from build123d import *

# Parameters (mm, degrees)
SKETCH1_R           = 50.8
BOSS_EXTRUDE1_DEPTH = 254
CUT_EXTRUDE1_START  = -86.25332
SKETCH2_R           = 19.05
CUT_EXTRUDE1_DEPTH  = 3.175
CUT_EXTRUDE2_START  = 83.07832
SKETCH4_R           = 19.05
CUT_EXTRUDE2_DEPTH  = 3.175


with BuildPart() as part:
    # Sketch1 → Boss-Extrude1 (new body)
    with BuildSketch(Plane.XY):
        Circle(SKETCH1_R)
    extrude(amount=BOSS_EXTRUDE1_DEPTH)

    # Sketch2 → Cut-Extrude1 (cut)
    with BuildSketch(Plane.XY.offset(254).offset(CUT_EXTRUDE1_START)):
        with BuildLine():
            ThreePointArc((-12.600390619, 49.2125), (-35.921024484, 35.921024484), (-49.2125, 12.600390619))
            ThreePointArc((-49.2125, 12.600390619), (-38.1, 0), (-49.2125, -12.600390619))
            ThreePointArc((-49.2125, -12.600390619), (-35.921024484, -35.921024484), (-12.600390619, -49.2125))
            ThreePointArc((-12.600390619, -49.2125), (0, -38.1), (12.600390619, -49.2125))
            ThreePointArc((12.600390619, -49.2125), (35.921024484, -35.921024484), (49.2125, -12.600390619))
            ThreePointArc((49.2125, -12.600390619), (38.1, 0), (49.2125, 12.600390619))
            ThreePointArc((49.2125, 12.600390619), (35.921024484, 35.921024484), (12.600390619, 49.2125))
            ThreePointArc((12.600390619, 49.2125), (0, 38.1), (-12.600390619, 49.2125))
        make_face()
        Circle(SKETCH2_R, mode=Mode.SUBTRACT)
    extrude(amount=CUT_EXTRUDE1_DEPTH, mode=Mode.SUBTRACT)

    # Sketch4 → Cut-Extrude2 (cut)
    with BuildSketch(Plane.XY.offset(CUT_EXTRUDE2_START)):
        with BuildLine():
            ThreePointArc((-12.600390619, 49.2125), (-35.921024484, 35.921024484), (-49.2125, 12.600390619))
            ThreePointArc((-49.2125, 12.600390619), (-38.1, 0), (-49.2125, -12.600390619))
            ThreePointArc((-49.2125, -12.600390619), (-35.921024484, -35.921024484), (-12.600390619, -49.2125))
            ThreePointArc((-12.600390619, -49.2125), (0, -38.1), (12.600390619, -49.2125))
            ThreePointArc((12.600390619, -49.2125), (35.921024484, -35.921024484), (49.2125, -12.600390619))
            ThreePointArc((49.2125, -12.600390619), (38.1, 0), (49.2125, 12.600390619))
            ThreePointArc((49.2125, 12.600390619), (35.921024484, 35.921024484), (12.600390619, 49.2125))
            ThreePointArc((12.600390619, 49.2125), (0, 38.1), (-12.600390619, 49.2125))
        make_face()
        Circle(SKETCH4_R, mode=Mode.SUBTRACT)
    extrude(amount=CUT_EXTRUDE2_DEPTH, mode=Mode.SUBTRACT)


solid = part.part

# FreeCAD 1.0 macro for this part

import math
import FreeCAD as App
import Part
import Sketcher
from FreeCAD import Vector
Q = App.Units.Quantity

doc = App.newDocument("Part")
body = doc.addObject("PartDesign::Body", "Body")

sketch1 = body.newObject("Sketcher::SketchObject", "Sketch")
sketch1.AttachmentSupport = (doc.getObject("XY_Plane"), [""])
sketch1.MapMode = "FlatFace"
sketch1.addGeometry(Part.Circle(Vector(0, 0, 0), Vector(0, 0, 1), 51), False)
sketch1.addConstraint([
    Sketcher.Constraint("Coincident", 0, 3, -1, 1),
    Sketcher.Constraint("Diameter", 0, Q("4 in")),
])
pad1 = body.newObject("PartDesign::Pad", "Pad")
pad1.Profile = sketch1
pad1.Length = Q("10 in")

sketch2 = body.newObject("Sketcher::SketchObject", "Sketch001")
sketch2.AttachmentSupport = (doc.getObject("XY_Plane"), [""])
sketch2.MapMode = "FlatFace"
sketch2.AttachmentOffset = App.Placement(Vector(0, 0, 6.6042 * 25.4), App.Rotation())
sketch2.addGeometry([
    Part.ArcOfCircle(Part.Circle(Vector(0, 0, 0), Vector(0, 0, 1), 51), math.radians(104), math.radians(166)),
    Part.ArcOfCircle(Part.Circle(Vector(-51, 0, 0), Vector(0, 0, 1), 13), math.radians(-83), math.radians(83)),
    Part.ArcOfCircle(Part.Circle(Vector(0, 0, 0), Vector(0, 0, 1), 51), math.radians(-166), math.radians(-104)),
    Part.ArcOfCircle(Part.Circle(Vector(0, -51, 0), Vector(0, 0, 1), 13), math.radians(7), math.radians(173)),
    Part.ArcOfCircle(Part.Circle(Vector(0, 0, 0), Vector(0, 0, 1), 51), math.radians(-76), math.radians(-14)),
    Part.ArcOfCircle(Part.Circle(Vector(51, 0, 0), Vector(0, 0, 1), 13), math.radians(97), math.radians(263)),
    Part.ArcOfCircle(Part.Circle(Vector(0, 0, 0), Vector(0, 0, 1), 51), math.radians(14), math.radians(76)),
    Part.ArcOfCircle(Part.Circle(Vector(0, 51, 0), Vector(0, 0, 1), 13), math.radians(-173), math.radians(-7)),
    Part.Circle(Vector(0, 0, 0), Vector(0, 0, 1), 19),
], False)
sketch2.addConstraint([
    Sketcher.Constraint("Coincident", 0, 2, 1, 2),
    Sketcher.Constraint("Coincident", 1, 1, 2, 1),
    Sketcher.Constraint("Coincident", 2, 2, 3, 2),
    Sketcher.Constraint("Coincident", 3, 1, 4, 1),
    Sketcher.Constraint("Coincident", 4, 2, 5, 2),
    Sketcher.Constraint("Coincident", 5, 1, 6, 1),
    Sketcher.Constraint("Coincident", 6, 2, 7, 2),
    Sketcher.Constraint("Coincident", 7, 1, 0, 1),
    Sketcher.Constraint("Coincident", 0, 3, -1, 1),
    Sketcher.Constraint("Coincident", 2, 3, -1, 1),
    Sketcher.Constraint("Coincident", 4, 3, -1, 1),
    Sketcher.Constraint("Coincident", 6, 3, -1, 1),
    Sketcher.Constraint("Coincident", 8, 3, -1, 1),
    Sketcher.Constraint("Equal", 0, 2),
    Sketcher.Constraint("Equal", 1, 3),
    Sketcher.Constraint("Equal", 2, 4),
    Sketcher.Constraint("Equal", 3, 5),
    Sketcher.Constraint("Equal", 4, 6),
    Sketcher.Constraint("Equal", 5, 7),
    Sketcher.Constraint("Symmetric", 1, 3, 5, 3, -1, 1),
    Sketcher.Constraint("Symmetric", 3, 3, 7, 3, -1, 1),
    Sketcher.Constraint("PointOnObject", 1, 3, -1),
    Sketcher.Constraint("PointOnObject", 3, 3, -2),
    Sketcher.Constraint("Radius", 0, Q("2 in")),
    Sketcher.Constraint("Diameter", 8, Q("1.5 in")),
    Sketcher.Constraint("Radius", 1, Q("0.5 in")),
    Sketcher.Constraint("DistanceX", 1, 3, -1, 1, Q("2 in")),
    Sketcher.Constraint("DistanceY", 3, 3, -1, 1, Q("2 in")),
])
pocket1 = body.newObject("PartDesign::Pocket", "Pocket")
pocket1.Profile = sketch2
pocket1.Length = Q("0.125 in")
pocket1.Reversed = True

sketch3 = body.newObject("Sketcher::SketchObject", "Sketch002")
sketch3.AttachmentSupport = (doc.getObject("XY_Plane"), [""])
sketch3.MapMode = "FlatFace"
sketch3.AttachmentOffset = App.Placement(Vector(0, 0, 3.2708 * 25.4), App.Rotation())
sketch3.addGeometry([
    Part.ArcOfCircle(Part.Circle(Vector(0, 0, 0), Vector(0, 0, 1), 51), math.radians(104), math.radians(166)),
    Part.ArcOfCircle(Part.Circle(Vector(-51, 0, 0), Vector(0, 0, 1), 13), math.radians(-83), math.radians(83)),
    Part.ArcOfCircle(Part.Circle(Vector(0, 0, 0), Vector(0, 0, 1), 51), math.radians(-166), math.radians(-104)),
    Part.ArcOfCircle(Part.Circle(Vector(0, -51, 0), Vector(0, 0, 1), 13), math.radians(7), math.radians(173)),
    Part.ArcOfCircle(Part.Circle(Vector(0, 0, 0), Vector(0, 0, 1), 51), math.radians(-76), math.radians(-14)),
    Part.ArcOfCircle(Part.Circle(Vector(51, 0, 0), Vector(0, 0, 1), 13), math.radians(97), math.radians(263)),
    Part.ArcOfCircle(Part.Circle(Vector(0, 0, 0), Vector(0, 0, 1), 51), math.radians(14), math.radians(76)),
    Part.ArcOfCircle(Part.Circle(Vector(0, 51, 0), Vector(0, 0, 1), 13), math.radians(-173), math.radians(-7)),
    Part.Circle(Vector(0, 0, 0), Vector(0, 0, 1), 19),
], False)
sketch3.addConstraint([
    Sketcher.Constraint("Coincident", 0, 2, 1, 2),
    Sketcher.Constraint("Coincident", 1, 1, 2, 1),
    Sketcher.Constraint("Coincident", 2, 2, 3, 2),
    Sketcher.Constraint("Coincident", 3, 1, 4, 1),
    Sketcher.Constraint("Coincident", 4, 2, 5, 2),
    Sketcher.Constraint("Coincident", 5, 1, 6, 1),
    Sketcher.Constraint("Coincident", 6, 2, 7, 2),
    Sketcher.Constraint("Coincident", 7, 1, 0, 1),
    Sketcher.Constraint("Coincident", 0, 3, -1, 1),
    Sketcher.Constraint("Coincident", 2, 3, -1, 1),
    Sketcher.Constraint("Coincident", 4, 3, -1, 1),
    Sketcher.Constraint("Coincident", 6, 3, -1, 1),
    Sketcher.Constraint("Coincident", 8, 3, -1, 1),
    Sketcher.Constraint("Equal", 0, 2),
    Sketcher.Constraint("Equal", 1, 3),
    Sketcher.Constraint("Equal", 2, 4),
    Sketcher.Constraint("Equal", 3, 5),
    Sketcher.Constraint("Equal", 4, 6),
    Sketcher.Constraint("Equal", 5, 7),
    Sketcher.Constraint("Symmetric", 1, 3, 5, 3, -1, 1),
    Sketcher.Constraint("Symmetric", 3, 3, 7, 3, -1, 1),
    Sketcher.Constraint("PointOnObject", 1, 3, -1),
    Sketcher.Constraint("PointOnObject", 3, 3, -2),
    Sketcher.Constraint("Radius", 0, Q("2 in")),
    Sketcher.Constraint("Diameter", 8, Q("1.5 in")),
    Sketcher.Constraint("Radius", 1, Q("0.5 in")),
    Sketcher.Constraint("DistanceX", 1, 3, -1, 1, Q("2 in")),
    Sketcher.Constraint("DistanceY", 3, 3, -1, 1, Q("2 in")),
])
pocket2 = body.newObject("PartDesign::Pocket", "Pocket001")
pocket2.Profile = sketch3
pocket2.Length = Q("0.125 in")
pocket2.Reversed = True

doc.recompute()
